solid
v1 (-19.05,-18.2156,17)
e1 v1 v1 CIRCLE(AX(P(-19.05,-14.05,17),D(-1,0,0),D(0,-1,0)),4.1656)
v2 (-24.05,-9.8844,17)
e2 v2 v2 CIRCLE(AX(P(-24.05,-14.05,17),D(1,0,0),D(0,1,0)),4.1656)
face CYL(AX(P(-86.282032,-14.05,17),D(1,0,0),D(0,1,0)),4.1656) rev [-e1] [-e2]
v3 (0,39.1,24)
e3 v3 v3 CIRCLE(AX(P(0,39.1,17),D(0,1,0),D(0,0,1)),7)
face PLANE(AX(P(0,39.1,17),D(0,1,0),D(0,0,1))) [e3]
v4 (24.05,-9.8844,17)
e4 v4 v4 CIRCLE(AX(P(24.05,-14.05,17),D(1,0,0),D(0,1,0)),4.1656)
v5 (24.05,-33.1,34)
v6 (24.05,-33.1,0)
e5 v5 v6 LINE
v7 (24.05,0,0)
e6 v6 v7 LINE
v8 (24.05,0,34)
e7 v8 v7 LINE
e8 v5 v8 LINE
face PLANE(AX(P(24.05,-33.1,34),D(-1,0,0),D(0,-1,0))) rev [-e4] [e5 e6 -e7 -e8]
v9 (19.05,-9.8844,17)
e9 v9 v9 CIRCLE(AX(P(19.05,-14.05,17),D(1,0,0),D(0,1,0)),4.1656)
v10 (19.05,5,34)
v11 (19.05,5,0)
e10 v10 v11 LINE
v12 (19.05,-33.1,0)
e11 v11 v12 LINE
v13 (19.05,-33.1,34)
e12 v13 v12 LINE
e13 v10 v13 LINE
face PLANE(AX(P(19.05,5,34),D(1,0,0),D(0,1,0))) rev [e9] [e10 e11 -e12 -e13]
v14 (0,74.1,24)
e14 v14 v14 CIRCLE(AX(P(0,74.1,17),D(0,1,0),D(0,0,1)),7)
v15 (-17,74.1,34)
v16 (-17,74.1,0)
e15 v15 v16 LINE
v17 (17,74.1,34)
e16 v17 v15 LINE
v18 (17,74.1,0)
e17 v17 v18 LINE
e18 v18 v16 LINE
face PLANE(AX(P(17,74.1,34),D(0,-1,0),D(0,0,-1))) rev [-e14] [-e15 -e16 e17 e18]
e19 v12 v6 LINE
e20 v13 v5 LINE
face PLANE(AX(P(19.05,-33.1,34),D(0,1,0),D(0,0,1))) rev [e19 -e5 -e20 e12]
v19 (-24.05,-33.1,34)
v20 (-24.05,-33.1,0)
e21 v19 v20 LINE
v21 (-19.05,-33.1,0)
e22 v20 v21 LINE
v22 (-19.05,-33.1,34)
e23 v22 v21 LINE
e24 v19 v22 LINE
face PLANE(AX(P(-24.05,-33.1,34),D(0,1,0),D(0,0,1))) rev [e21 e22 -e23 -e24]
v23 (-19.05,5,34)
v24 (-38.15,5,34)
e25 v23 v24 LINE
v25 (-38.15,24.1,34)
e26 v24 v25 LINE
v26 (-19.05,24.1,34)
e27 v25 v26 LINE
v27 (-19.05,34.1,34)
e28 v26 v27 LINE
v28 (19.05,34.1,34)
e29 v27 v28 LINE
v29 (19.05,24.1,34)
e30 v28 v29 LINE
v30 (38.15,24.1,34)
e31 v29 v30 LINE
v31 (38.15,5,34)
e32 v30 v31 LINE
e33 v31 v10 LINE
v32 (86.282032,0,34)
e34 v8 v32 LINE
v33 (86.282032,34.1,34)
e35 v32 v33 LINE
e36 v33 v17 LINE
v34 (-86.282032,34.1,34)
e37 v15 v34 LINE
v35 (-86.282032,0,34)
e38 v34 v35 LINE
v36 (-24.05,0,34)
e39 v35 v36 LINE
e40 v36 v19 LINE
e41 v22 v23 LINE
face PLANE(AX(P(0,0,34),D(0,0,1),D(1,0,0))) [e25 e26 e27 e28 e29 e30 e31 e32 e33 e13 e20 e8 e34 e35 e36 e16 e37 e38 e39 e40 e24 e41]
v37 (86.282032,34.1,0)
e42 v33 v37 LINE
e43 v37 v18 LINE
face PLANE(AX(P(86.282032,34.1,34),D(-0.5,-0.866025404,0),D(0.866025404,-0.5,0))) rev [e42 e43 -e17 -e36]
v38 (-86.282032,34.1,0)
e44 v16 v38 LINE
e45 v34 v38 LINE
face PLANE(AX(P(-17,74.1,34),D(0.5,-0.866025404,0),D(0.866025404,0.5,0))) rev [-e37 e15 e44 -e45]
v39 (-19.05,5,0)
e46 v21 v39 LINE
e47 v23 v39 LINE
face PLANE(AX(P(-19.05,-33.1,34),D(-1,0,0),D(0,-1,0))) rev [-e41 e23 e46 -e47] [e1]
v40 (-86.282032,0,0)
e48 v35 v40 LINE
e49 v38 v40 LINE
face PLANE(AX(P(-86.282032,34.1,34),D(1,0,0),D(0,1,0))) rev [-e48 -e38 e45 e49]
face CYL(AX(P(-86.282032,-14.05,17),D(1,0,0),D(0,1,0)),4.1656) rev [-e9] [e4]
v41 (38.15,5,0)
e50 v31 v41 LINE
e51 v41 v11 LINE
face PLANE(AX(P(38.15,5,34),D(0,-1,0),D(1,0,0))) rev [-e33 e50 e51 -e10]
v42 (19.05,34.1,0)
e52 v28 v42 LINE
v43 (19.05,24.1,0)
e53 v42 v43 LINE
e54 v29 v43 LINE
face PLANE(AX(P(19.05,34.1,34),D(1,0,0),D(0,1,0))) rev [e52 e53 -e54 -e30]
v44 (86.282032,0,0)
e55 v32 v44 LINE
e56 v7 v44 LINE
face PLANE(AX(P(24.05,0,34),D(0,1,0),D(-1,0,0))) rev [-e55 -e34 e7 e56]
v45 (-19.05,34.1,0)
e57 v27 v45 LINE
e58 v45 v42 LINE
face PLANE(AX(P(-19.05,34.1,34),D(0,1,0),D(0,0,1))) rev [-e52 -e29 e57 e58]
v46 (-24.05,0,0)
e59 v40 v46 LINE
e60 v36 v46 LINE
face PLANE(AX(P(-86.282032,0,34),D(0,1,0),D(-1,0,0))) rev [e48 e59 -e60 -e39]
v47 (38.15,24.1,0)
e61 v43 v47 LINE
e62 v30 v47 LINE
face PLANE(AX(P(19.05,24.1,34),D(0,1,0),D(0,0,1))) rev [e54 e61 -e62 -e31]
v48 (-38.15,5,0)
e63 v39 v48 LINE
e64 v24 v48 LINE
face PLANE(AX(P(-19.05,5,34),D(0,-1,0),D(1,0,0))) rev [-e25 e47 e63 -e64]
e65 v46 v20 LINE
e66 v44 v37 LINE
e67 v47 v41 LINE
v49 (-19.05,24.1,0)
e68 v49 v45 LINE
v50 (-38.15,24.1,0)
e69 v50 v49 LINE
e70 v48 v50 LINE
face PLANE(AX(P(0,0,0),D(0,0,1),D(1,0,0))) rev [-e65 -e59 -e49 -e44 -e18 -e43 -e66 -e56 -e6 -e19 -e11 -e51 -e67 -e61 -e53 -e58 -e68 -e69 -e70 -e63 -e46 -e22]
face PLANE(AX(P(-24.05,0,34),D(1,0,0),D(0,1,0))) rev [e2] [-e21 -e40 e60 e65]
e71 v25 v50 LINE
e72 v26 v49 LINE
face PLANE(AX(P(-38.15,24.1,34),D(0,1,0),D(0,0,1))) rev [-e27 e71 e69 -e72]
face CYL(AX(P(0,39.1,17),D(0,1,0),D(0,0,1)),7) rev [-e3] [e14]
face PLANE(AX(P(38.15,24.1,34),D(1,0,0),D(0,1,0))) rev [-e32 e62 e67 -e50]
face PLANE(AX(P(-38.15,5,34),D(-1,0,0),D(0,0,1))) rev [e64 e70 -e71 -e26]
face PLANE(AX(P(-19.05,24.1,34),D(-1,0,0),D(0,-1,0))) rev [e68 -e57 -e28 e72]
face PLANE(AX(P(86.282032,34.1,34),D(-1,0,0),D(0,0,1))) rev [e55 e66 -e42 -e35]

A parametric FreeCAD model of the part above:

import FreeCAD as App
import Part
import Sketcher

V = App.Vector
Q = App.Units.Quantity

doc = App.newDocument("Part")
body = doc.addObject("PartDesign::Body", "Body")

# Sketch on XY plane
sketch1 = body.newObject("Sketcher::SketchObject", "Sketch")
sketch1.AttachmentSupport = (doc.getObject("XY_Plane"), [""])
sketch1.MapMode = "FlatFace"
sketch1.addGeometry(Part.LineSegment(V(-86.282032, 0, 0), V(-24.05, 0, 0)), False)
sketch1.addGeometry(Part.LineSegment(V(-24.05, 0, 0), V(-24.05, -33.1, 0)), False)
sketch1.addGeometry(Part.LineSegment(V(-24.05, -33.1, 0), V(-19.05, -33.1, 0)), False)
sketch1.addGeometry(Part.LineSegment(V(-19.05, -33.1, 0), V(-19.05, 5, 0)), False)
sketch1.addGeometry(Part.LineSegment(V(-19.05, 5, 0), V(-38.15, 5, 0)), False)
sketch1.addGeometry(Part.LineSegment(V(-38.15, 5, 0), V(-38.15, 24.1, 0)), False)
sketch1.addGeometry(Part.LineSegment(V(-38.15, 24.1, 0), V(-19.05, 24.1, 0)), False)
sketch1.addGeometry(Part.LineSegment(V(-19.05, 24.1, 0), V(-19.05, 34.1, 0)), False)
sketch1.addGeometry(Part.LineSegment(V(-19.05, 34.1, 0), V(19.05, 34.1, 0)), False)
sketch1.addGeometry(Part.LineSegment(V(19.05, 34.1, 0), V(19.05, 24.1, 0)), False)
sketch1.addGeometry(Part.LineSegment(V(19.05, 24.1, 0), V(38.15, 24.1, 0)), False)
sketch1.addGeometry(Part.LineSegment(V(38.15, 24.1, 0), V(38.15, 5, 0)), False)
sketch1.addGeometry(Part.LineSegment(V(38.15, 5, 0), V(19.05, 5, 0)), False)
sketch1.addGeometry(Part.LineSegment(V(19.05, 5, 0), V(19.05, -33.1, 0)), False)
sketch1.addGeometry(Part.LineSegment(V(19.05, -33.1, 0), V(24.05, -33.1, 0)), False)
sketch1.addGeometry(Part.LineSegment(V(24.05, -33.1, 0), V(24.05, 0, 0)), False)
sketch1.addGeometry(Part.LineSegment(V(24.05, 0, 0), V(86.282032, 0, 0)), False)
sketch1.addGeometry(Part.LineSegment(V(86.282032, 0, 0), V(86.282032, 34.1, 0)), False)
sketch1.addGeometry(Part.LineSegment(V(86.282032, 34.1, 0), V(17, 74.1, 0)), False)
sketch1.addGeometry(Part.LineSegment(V(17, 74.1, 0), V(-17, 74.1, 0)), False)
sketch1.addGeometry(Part.LineSegment(V(-17, 74.1, 0), V(-86.282032, 34.1, 0)), False)
sketch1.addGeometry(Part.LineSegment(V(-86.282032, 34.1, 0), V(-86.282032, 0, 0)), False)
sketch1.addConstraint(Sketcher.Constraint("Coincident", 0, 2, 1, 1))
sketch1.addConstraint(Sketcher.Constraint("Coincident", 1, 2, 2, 1))
sketch1.addConstraint(Sketcher.Constraint("Coincident", 2, 2, 3, 1))
sketch1.addConstraint(Sketcher.Constraint("Coincident", 3, 2, 4, 1))
sketch1.addConstraint(Sketcher.Constraint("Coincident", 4, 2, 5, 1))
sketch1.addConstraint(Sketcher.Constraint("Coincident", 5, 2, 6, 1))
sketch1.addConstraint(Sketcher.Constraint("Coincident", 6, 2, 7, 1))
sketch1.addConstraint(Sketcher.Constraint("Coincident", 7, 2, 8, 1))
sketch1.addConstraint(Sketcher.Constraint("Coincident", 8, 2, 9, 1))
sketch1.addConstraint(Sketcher.Constraint("Coincident", 9, 2, 10, 1))
sketch1.addConstraint(Sketcher.Constraint("Coincident", 10, 2, 11, 1))
sketch1.addConstraint(Sketcher.Constraint("Coincident", 11, 2, 12, 1))
sketch1.addConstraint(Sketcher.Constraint("Coincident", 12, 2, 13, 1))
sketch1.addConstraint(Sketcher.Constraint("Coincident", 13, 2, 14, 1))
sketch1.addConstraint(Sketcher.Constraint("Coincident", 14, 2, 15, 1))
sketch1.addConstraint(Sketcher.Constraint("Coincident", 15, 2, 16, 1))
sketch1.addConstraint(Sketcher.Constraint("Coincident", 16, 2, 17, 1))
sketch1.addConstraint(Sketcher.Constraint("Coincident", 17, 2, 18, 1))
sketch1.addConstraint(Sketcher.Constraint("Coincident", 18, 2, 19, 1))
sketch1.addConstraint(Sketcher.Constraint("Coincident", 19, 2, 20, 1))
sketch1.addConstraint(Sketcher.Constraint("Coincident", 20, 2, 21, 1))
sketch1.addConstraint(Sketcher.Constraint("Coincident", 21, 2, 0, 1))
sketch1.addConstraint(Sketcher.Constraint("Horizontal", 0))
sketch1.addConstraint(Sketcher.Constraint("Vertical", 1))
sketch1.addConstraint(Sketcher.Constraint("Horizontal", 2))
sketch1.addConstraint(Sketcher.Constraint("Vertical", 3))
sketch1.addConstraint(Sketcher.Constraint("Horizontal", 4))
sketch1.addConstraint(Sketcher.Constraint("Vertical", 5))
sketch1.addConstraint(Sketcher.Constraint("Horizontal", 6))
sketch1.addConstraint(Sketcher.Constraint("Vertical", 7))
sketch1.addConstraint(Sketcher.Constraint("Horizontal", 8))
sketch1.addConstraint(Sketcher.Constraint("Vertical", 9))
sketch1.addConstraint(Sketcher.Constraint("Horizontal", 10))
sketch1.addConstraint(Sketcher.Constraint("Vertical", 11))
sketch1.addConstraint(Sketcher.Constraint("Horizontal", 12))
sketch1.addConstraint(Sketcher.Constraint("Vertical", 13))
sketch1.addConstraint(Sketcher.Constraint("Horizontal", 14))
sketch1.addConstraint(Sketcher.Constraint("Vertical", 15))
sketch1.addConstraint(Sketcher.Constraint("Horizontal", 16))
sketch1.addConstraint(Sketcher.Constraint("Vertical", 17))
sketch1.addConstraint(Sketcher.Constraint("Horizontal", 19))
sketch1.addConstraint(Sketcher.Constraint("Vertical", 21))
sketch1.addConstraint(Sketcher.Constraint("Symmetric", 0, 2, 15, 2, -1, 1))
sketch1.addConstraint(Sketcher.Constraint("Symmetric", 6, 2, 9, 2, -2))
sketch1.addConstraint(Sketcher.Constraint("Symmetric", 4, 2, 11, 2, -2))
sketch1.addConstraint(Sketcher.Constraint("Symmetric", 2, 2, 13, 2, -2))
sketch1.addConstraint(Sketcher.Constraint("Symmetric", 17, 2, 20, 2, -2))
sketch1.addConstraint(Sketcher.Constraint("PointOnObject", 0, 2, -1))
sketch1.addConstraint(Sketcher.Constraint("Horizontal", 8, 2, 17, 2))
sketch1.addConstraint(Sketcher.Constraint("Vertical", 3, 2, 6, 2))
sketch1.addConstraint(Sketcher.Constraint("Equal", 8, 3))
sketch1.addConstraint(Sketcher.Constraint("Equal", 12, 5))
sketch1.addConstraint(Sketcher.Constraint("Equal", 18, 20))
sketch1.addConstraint(Sketcher.Constraint("DistanceX", 2, 1, 2, 2, Q("5 mm")))
sketch1.addConstraint(Sketcher.Constraint("DistanceX", 19, 2, 19, 1, Q("34 mm")))
sketch1.addConstraint(Sketcher.Constraint("DistanceY", 7, 1, 7, 2, Q("10 mm")))
sketch1.addConstraint(Sketcher.Constraint("Angle", 18, Q("150 deg")))
sketch1.addConstraint(Sketcher.Constraint("Distance", 18, Q("80 mm")))
sketch1.addConstraint(Sketcher.Constraint("DistanceX", 4, 2, 4, 1, Q("19.1 mm")))
sketch1.addConstraint(Sketcher.Constraint("DistanceX", 8, 1, 8, 2, Q("38.1 mm")))
sketch1.addConstraint(Sketcher.Constraint("DistanceY", 1, 2, 1, 1, Q("33.1 mm")))
pad1 = body.newObject("PartDesign::Pad", "Pad")
pad1.Profile = sketch1
pad1.Length = 34

# Sketch on XZ plane
sketch2 = body.newObject("Sketcher::SketchObject", "Sketch001")
sketch2.AttachmentSupport = (doc.getObject("XZ_Plane"), [""])
sketch2.MapMode = "FlatFace"
sketch2.AttachmentOffset = App.Placement(V(0, 0, -74.1), App.Rotation())
sketch2.addGeometry(Part.Circle(V(0, 17, 0), V(0, 0, 1), 7), False)
sketch2.addConstraint(Sketcher.Constraint("PointOnObject", 0, 3, -2))
sketch2.addConstraint(Sketcher.Constraint("Diameter", 0, Q("14 mm")))
sketch2.addConstraint(Sketcher.Constraint("DistanceY", -1, 1, 0, 3, Q("17 mm")))
pocket1 = body.newObject("PartDesign::Pocket", "Pocket")
pocket1.Profile = sketch2
pocket1.Length = 35
pocket1.Reversed = True

# Sketch on YZ plane
sketch3 = body.newObject("Sketcher::SketchObject", "Sketch002")
sketch3.AttachmentSupport = (doc.getObject("YZ_Plane"), [""])
sketch3.MapMode = "FlatFace"
sketch3.AttachmentOffset = App.Placement(V(0, 0, 24.05), App.Rotation())
sketch3.addGeometry(Part.Circle(V(-14.05, 17, 0), V(0, 0, 1), 4.1656), False)
sketch3.addConstraint(Sketcher.Constraint("DistanceY", -1, 1, 0, 3, Q("17 mm")))
sketch3.addConstraint(Sketcher.Constraint("Diameter", 0, Q("8.3312 mm")))
sketch3.addConstraint(Sketcher.Constraint("DistanceX", 0, 3, -1, 1, Q("14.05 mm")))
pocket2 = body.newObject("PartDesign::Pocket", "Pocket001")
pocket2.Profile = sketch3
pocket2.Type = "ThroughAll"

doc.recompute()
